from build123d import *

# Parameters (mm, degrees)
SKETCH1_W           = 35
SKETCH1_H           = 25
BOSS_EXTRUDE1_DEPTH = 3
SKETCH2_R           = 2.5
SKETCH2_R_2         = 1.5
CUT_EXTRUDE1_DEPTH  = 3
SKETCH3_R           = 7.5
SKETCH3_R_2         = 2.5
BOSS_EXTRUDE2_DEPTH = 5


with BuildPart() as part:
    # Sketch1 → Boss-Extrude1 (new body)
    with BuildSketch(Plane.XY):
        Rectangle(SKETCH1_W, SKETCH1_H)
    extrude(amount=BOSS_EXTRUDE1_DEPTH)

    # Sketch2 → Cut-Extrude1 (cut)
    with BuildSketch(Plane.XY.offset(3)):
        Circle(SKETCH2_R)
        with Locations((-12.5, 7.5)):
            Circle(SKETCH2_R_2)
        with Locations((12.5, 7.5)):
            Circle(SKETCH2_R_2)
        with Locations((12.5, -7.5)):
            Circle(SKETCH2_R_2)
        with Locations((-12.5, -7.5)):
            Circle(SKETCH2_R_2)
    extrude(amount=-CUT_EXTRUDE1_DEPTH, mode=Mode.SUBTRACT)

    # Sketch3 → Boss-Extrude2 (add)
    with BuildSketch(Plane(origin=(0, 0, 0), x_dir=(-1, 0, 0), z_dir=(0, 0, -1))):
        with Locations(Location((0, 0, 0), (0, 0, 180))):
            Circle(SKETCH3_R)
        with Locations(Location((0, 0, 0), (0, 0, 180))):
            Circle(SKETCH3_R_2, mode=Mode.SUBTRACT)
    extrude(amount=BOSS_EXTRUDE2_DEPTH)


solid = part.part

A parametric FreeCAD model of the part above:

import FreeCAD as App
import Part
import Sketcher

V = App.Vector
Q = App.Units.Quantity


def add_polygon(sketch, points):
    """Adds a closed chain of lines whose ends are joined by coincident constraints."""
    first, n = sketch.GeometryCount, len(points)
    for a, b in zip(points, points[1:] + points[:1]):
        sketch.addGeometry(Part.LineSegment(App.Vector(*a, 0), App.Vector(*b, 0)), False)
    for i in range(n):
        sketch.addConstraint(Sketcher.Constraint("Coincident", first + i, 2, first + (i + 1) % n, 1))

doc = App.newDocument("Part")
body = doc.addObject("PartDesign::Body", "Body")

# Sketch on XY plane
sketch1 = body.newObject("Sketcher::SketchObject", "Sketch")
sketch1.AttachmentSupport = (doc.getObject("XY_Plane"), [""])
sketch1.MapMode = "FlatFace"
add_polygon(sketch1, [(-18, 12), (-18, -12), (18, -12), (18, 12)])  # lines 0-3
sketch1.addConstraint([
    Sketcher.Constraint("Vertical", 0),
    Sketcher.Constraint("Horizontal", 1),
    Sketcher.Constraint("Vertical", 2),
    Sketcher.Constraint("Horizontal", 3),
    Sketcher.Constraint("Symmetric", 0, 2, 2, 2, -1, 1),
    Sketcher.Constraint("DistanceX", 1, 1, 1, 2, Q("35 mm")),
    Sketcher.Constraint("DistanceY", 0, 2, 0, 1, Q("25 mm")),
])
pad1 = body.newObject("PartDesign::Pad", "Pad")
pad1.Profile = sketch1
pad1.Length = 3

# Sketch on XY plane
sketch2 = body.newObject("Sketcher::SketchObject", "Sketch001")
sketch2.AttachmentSupport = (doc.getObject("XY_Plane"), [""])
sketch2.MapMode = "FlatFace"
sketch2.AttachmentOffset = App.Placement(V(0, 0, 3), App.Rotation())
sketch2.addGeometry([
    Part.Circle(V(0, 0, 0), V(0, 0, 1), 2.5),  # 0
    Part.Circle(V(-12.5, 7.5, 0), V(0, 0, 1), 1.5),  # 1
    Part.Circle(V(12.5, 7.5, 0), V(0, 0, 1), 1.5),  # 2
    Part.Circle(V(12.5, -7.5, 0), V(0, 0, 1), 1.5),  # 3
    Part.Circle(V(-12.5, -7.5, 0), V(0, 0, 1), 1.5),  # 4
], False)
sketch2.addConstraint([
    Sketcher.Constraint("Coincident", 0, 3, -1, 1),
    Sketcher.Constraint("Equal", 1, 2),
    Sketcher.Constraint("Equal", 2, 3),
    Sketcher.Constraint("Equal", 3, 4),
    Sketcher.Constraint("Symmetric", 1, 3, 3, 3, -1, 1),
    Sketcher.Constraint("Symmetric", 2, 3, 4, 3, -1, 1),
    Sketcher.Constraint("Symmetric", 1, 3, 2, 3, -2),
    Sketcher.Constraint("Diameter", 0, Q("5 mm")),
    Sketcher.Constraint("Diameter", 1, Q("3 mm")),
    Sketcher.Constraint("DistanceX", 1, 3, 2, 3, Q("25 mm")),
    Sketcher.Constraint("DistanceY", 3, 3, 2, 3, Q("15 mm")),
])
pocket1 = body.newObject("PartDesign::Pocket", "Pocket")
pocket1.Profile = sketch2
pocket1.Length = 3

# Sketch on XY plane
sketch3 = body.newObject("Sketcher::SketchObject", "Sketch002")
sketch3.AttachmentSupport = (doc.getObject("XY_Plane"), [""])
sketch3.MapMode = "FlatFace"
sketch3.addGeometry([
    Part.Circle(V(0, 0, 0), V(0, 0, 1), 7.5),
    Part.Circle(V(0, 0, 0), V(0, 0, 1), 2.5),
], False)
sketch3.addConstraint([
    Sketcher.Constraint("Coincident", 0, 3, -1, 1),
    Sketcher.Constraint("Coincident", 1, 3, -1, 1),
    Sketcher.Constraint("Diameter", 0, Q("15 mm")),
    Sketcher.Constraint("Diameter", 1, Q("5 mm")),
])
pad2 = body.newObject("PartDesign::Pad", "Pad001")
pad2.Profile = sketch3
pad2.Length = 5
pad2.Reversed = True

doc.recompute()
